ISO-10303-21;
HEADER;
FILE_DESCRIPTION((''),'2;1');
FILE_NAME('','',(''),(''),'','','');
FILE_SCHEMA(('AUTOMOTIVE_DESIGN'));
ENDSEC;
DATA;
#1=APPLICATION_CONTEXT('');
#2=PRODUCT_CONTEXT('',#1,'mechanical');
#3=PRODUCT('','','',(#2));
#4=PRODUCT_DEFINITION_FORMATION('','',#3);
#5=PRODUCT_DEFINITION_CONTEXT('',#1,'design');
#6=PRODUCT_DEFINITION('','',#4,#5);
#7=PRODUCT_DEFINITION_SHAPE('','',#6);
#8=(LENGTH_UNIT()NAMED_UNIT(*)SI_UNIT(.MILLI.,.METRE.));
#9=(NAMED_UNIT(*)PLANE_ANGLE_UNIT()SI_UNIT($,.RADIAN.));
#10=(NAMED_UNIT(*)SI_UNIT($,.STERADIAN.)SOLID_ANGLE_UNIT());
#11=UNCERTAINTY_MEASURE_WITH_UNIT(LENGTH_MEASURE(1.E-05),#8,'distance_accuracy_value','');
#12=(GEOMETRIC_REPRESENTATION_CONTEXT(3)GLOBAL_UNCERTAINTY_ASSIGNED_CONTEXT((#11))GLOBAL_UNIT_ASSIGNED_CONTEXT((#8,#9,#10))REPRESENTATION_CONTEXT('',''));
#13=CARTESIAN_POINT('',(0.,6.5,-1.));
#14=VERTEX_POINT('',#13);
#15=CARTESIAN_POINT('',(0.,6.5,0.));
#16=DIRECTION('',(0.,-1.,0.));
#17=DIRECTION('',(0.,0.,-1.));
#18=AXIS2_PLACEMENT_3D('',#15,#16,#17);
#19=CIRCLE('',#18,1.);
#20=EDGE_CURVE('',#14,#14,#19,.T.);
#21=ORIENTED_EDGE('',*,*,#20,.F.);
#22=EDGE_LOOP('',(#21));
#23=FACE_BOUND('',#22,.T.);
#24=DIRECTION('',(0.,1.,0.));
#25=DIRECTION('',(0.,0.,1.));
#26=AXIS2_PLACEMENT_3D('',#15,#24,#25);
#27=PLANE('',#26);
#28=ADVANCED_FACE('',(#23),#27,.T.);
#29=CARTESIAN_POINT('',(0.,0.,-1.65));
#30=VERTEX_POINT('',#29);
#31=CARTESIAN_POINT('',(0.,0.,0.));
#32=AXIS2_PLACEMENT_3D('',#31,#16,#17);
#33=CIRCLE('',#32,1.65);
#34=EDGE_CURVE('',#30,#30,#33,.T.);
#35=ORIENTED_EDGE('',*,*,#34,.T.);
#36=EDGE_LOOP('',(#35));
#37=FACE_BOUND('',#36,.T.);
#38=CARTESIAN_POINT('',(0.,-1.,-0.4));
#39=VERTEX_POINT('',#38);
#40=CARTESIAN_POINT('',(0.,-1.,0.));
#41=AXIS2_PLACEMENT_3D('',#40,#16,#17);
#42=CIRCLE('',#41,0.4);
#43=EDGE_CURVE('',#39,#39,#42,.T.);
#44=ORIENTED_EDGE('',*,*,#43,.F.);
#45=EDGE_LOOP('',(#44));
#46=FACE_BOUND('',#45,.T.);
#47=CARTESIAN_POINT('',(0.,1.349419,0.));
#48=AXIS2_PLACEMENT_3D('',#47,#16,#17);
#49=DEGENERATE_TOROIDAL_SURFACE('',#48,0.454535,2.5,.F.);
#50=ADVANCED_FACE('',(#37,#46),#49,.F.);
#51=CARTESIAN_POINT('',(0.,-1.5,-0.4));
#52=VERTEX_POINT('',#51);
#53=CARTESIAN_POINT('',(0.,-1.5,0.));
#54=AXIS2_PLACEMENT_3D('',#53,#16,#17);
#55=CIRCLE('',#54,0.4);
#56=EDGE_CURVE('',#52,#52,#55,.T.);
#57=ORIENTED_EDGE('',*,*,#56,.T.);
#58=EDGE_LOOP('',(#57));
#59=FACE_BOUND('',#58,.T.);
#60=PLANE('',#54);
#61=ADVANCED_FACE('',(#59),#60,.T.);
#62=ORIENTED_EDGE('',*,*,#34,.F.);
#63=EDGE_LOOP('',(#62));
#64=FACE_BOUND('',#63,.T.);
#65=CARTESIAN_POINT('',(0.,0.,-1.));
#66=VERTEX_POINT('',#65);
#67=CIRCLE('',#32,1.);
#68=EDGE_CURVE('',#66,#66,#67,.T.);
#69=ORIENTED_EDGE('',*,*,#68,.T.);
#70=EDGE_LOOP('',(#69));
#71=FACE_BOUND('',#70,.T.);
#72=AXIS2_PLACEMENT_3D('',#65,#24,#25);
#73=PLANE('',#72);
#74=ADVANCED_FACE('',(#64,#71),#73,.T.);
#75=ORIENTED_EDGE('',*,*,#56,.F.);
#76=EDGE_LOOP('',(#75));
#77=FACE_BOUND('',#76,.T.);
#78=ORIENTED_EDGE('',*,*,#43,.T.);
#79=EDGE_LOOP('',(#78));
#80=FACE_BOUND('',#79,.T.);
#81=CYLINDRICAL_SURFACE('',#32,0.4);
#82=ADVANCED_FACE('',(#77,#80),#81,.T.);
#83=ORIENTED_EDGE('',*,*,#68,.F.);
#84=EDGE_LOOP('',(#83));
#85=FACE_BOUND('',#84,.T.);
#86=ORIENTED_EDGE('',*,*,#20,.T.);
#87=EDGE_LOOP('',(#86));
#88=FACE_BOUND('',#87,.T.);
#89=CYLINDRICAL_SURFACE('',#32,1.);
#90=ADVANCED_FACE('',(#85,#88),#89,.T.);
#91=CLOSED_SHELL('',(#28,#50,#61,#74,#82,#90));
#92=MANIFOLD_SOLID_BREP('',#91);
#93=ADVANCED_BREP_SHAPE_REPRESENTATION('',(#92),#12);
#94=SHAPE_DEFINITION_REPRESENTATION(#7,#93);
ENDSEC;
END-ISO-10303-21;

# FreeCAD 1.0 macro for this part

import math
import FreeCAD as App
import Part
import Sketcher

doc = App.newDocument("Part")
body = doc.addObject("PartDesign::Body", "Body")

sketch1 = body.newObject("Sketcher::SketchObject", "Sketch")
sketch1.AttachmentSupport = (doc.getObject("YZ_Plane"), [""])
sketch1.MapMode = "FlatFace"
sketch1.addGeometry(Part.LineSegment(App.Vector(6.5, 0, 0), App.Vector(-1.5, 0, 0)), False)
sketch1.addGeometry(Part.LineSegment(App.Vector(-1.5, 0, 0), App.Vector(-1.5, -0.4, 0)), False)
sketch1.addGeometry(Part.LineSegment(App.Vector(-1.5, -0.4, 0), App.Vector(-1, -0.4, 0)), False)
sketch1.addGeometry(Part.ArcOfCircle(Part.Circle(App.Vector(1.35, 0.45, 0), App.Vector(0, 0, 1), 2.5), math.radians(-160), math.radians(-123)), False)
sketch1.addGeometry(Part.LineSegment(App.Vector(0, -1.65, 0), App.Vector(0, -1, 0)), False)
sketch1.addGeometry(Part.LineSegment(App.Vector(0, -1, 0), App.Vector(6.5, -1, 0)), False)
sketch1.addGeometry(Part.LineSegment(App.Vector(6.5, -1, 0), App.Vector(6.5, 0, 0)), False)
sketch1.addConstraint(Sketcher.Constraint("Coincident", 0, 2, 1, 1))
sketch1.addConstraint(Sketcher.Constraint("Coincident", 1, 2, 2, 1))
sketch1.addConstraint(Sketcher.Constraint("Coincident", 2, 2, 3, 1))
sketch1.addConstraint(Sketcher.Constraint("Coincident", 3, 2, 4, 1))
sketch1.addConstraint(Sketcher.Constraint("Coincident", 4, 2, 5, 1))
sketch1.addConstraint(Sketcher.Constraint("Coincident", 5, 2, 6, 1))
sketch1.addConstraint(Sketcher.Constraint("Coincident", 6, 2, 0, 1))
sketch1.addConstraint(Sketcher.Constraint("Horizontal", 0))
sketch1.addConstraint(Sketcher.Constraint("Vertical", 1))
sketch1.addConstraint(Sketcher.Constraint("Horizontal", 2))
sketch1.addConstraint(Sketcher.Constraint("Vertical", 4))
sketch1.addConstraint(Sketcher.Constraint("Horizontal", 5))
sketch1.addConstraint(Sketcher.Constraint("Vertical", 6))
sketch1.addConstraint(Sketcher.Constraint("PointOnObject", 0, 2, -1))
sketch1.addConstraint(Sketcher.Constraint("PointOnObject", 3, 2, -2))
sketch1.addConstraint(Sketcher.Constraint("Radius", 3, 2.5))
sketch1.addConstraint(Sketcher.Constraint("DistanceX", 0, 2, 0, 1, 8.0))
sketch1.addConstraint(Sketcher.Constraint("DistanceY", 6, 1, 6, 2, 1.0))
sketch1.addConstraint(Sketcher.Constraint("DistanceX", 2, 1, 2, 2, 0.5))
sketch1.addConstraint(Sketcher.Constraint("DistanceX", 5, 1, 5, 2, 6.5))
sketch1.addConstraint(Sketcher.Constraint("DistanceY", 1, 2, 1, 1, 0.4))
sketch1.addConstraint(Sketcher.Constraint("DistanceY", 4, 1, 4, 2, 0.65))
revolution = body.newObject("PartDesign::Revolution", "Revolution")
revolution.Profile = sketch1
revolution.ReferenceAxis = (sketch1, ["H_Axis"])
revolution.Angle = 360

doc.recompute()
